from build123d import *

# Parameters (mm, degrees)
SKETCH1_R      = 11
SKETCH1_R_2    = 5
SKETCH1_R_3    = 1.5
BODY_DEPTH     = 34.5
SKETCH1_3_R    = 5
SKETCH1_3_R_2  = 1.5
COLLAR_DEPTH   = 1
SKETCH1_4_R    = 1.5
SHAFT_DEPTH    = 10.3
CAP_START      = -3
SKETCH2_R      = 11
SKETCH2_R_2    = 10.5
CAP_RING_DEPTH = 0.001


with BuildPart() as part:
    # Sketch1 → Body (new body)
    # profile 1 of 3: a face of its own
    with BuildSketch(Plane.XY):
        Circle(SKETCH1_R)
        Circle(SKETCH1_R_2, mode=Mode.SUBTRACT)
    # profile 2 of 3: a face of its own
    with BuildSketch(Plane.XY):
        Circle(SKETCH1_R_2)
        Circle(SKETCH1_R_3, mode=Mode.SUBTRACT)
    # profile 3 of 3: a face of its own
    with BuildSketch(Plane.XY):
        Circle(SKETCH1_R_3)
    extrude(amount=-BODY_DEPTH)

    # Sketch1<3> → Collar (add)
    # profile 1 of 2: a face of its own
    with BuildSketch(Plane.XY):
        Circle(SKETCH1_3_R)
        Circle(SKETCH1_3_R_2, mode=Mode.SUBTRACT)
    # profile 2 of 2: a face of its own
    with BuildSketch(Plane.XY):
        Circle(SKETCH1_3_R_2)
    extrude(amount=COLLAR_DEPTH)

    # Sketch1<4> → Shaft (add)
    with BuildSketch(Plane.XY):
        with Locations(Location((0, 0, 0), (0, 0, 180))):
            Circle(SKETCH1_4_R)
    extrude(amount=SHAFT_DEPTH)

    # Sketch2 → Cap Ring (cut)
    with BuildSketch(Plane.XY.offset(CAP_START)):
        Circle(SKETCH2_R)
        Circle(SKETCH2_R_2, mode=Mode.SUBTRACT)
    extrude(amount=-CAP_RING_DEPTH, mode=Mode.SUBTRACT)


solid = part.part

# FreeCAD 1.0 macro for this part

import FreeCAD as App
import Part
import Sketcher

V = App.Vector
Q = App.Units.Quantity

doc = App.newDocument("Part")
body = doc.addObject("PartDesign::Body", "Body")

# Sketch on XY plane
sketch1 = body.newObject("Sketcher::SketchObject", "Sketch")
sketch1.AttachmentSupport = (doc.getObject("XY_Plane"), [""])
sketch1.MapMode = "FlatFace"
sketch1.addGeometry(Part.Circle(V(0, 0, 0), V(0, 0, 1), 11), False)
sketch1.addConstraint([
    Sketcher.Constraint("Coincident", 0, 3, -1, 1),
    Sketcher.Constraint("Diameter", 0, Q("22 mm")),
])
pad1 = body.newObject("PartDesign::Pad", "Pad")
pad1.Profile = sketch1
pad1.Length = 34.5
pad1.Reversed = True

# Sketch on XY plane
sketch2 = body.newObject("Sketcher::SketchObject", "Sketch001")
sketch2.AttachmentSupport = (doc.getObject("XY_Plane"), [""])
sketch2.MapMode = "FlatFace"
sketch2.addGeometry(Part.Circle(V(0, 0, 0), V(0, 0, 1), 5), False)
sketch2.addConstraint([
    Sketcher.Constraint("Coincident", 0, 3, -1, 1),
    Sketcher.Constraint("Diameter", 0, Q("10 mm")),
])
pad2 = body.newObject("PartDesign::Pad", "Pad001")
pad2.Profile = sketch2
pad2.Length = 1

# Sketch on XY plane
sketch3 = body.newObject("Sketcher::SketchObject", "Sketch002")
sketch3.AttachmentSupport = (doc.getObject("XY_Plane"), [""])
sketch3.MapMode = "FlatFace"
sketch3.addGeometry(Part.Circle(V(0, 0, 0), V(0, 0, 1), 1.5), False)
sketch3.addConstraint([
    Sketcher.Constraint("Coincident", 0, 3, -1, 1),
    Sketcher.Constraint("Diameter", 0, Q("3 mm")),
])
pad3 = body.newObject("PartDesign::Pad", "Pad002")
pad3.Profile = sketch3
pad3.Length = 10.3

# Sketch on XY plane
sketch4 = body.newObject("Sketcher::SketchObject", "Sketch003")
sketch4.AttachmentSupport = (doc.getObject("XY_Plane"), [""])
sketch4.MapMode = "FlatFace"
sketch4.AttachmentOffset = App.Placement(V(0, 0, -3), App.Rotation())
sketch4.addGeometry([
    Part.Circle(V(0, 0, 0), V(0, 0, 1), 11),
    Part.Circle(V(0, 0, 0), V(0, 0, 1), 10),
], False)
sketch4.addConstraint([
    Sketcher.Constraint("Coincident", 0, 3, -1, 1),
    Sketcher.Constraint("Coincident", 1, 3, -1, 1),
    Sketcher.Constraint("Diameter", 0, Q("22 mm")),
    Sketcher.Constraint("Diameter", 1, Q("21 mm")),
])
pocket1 = body.newObject("PartDesign::Pocket", "Pocket")
pocket1.Profile = sketch4
pocket1.Length = 0.001

doc.recompute()
